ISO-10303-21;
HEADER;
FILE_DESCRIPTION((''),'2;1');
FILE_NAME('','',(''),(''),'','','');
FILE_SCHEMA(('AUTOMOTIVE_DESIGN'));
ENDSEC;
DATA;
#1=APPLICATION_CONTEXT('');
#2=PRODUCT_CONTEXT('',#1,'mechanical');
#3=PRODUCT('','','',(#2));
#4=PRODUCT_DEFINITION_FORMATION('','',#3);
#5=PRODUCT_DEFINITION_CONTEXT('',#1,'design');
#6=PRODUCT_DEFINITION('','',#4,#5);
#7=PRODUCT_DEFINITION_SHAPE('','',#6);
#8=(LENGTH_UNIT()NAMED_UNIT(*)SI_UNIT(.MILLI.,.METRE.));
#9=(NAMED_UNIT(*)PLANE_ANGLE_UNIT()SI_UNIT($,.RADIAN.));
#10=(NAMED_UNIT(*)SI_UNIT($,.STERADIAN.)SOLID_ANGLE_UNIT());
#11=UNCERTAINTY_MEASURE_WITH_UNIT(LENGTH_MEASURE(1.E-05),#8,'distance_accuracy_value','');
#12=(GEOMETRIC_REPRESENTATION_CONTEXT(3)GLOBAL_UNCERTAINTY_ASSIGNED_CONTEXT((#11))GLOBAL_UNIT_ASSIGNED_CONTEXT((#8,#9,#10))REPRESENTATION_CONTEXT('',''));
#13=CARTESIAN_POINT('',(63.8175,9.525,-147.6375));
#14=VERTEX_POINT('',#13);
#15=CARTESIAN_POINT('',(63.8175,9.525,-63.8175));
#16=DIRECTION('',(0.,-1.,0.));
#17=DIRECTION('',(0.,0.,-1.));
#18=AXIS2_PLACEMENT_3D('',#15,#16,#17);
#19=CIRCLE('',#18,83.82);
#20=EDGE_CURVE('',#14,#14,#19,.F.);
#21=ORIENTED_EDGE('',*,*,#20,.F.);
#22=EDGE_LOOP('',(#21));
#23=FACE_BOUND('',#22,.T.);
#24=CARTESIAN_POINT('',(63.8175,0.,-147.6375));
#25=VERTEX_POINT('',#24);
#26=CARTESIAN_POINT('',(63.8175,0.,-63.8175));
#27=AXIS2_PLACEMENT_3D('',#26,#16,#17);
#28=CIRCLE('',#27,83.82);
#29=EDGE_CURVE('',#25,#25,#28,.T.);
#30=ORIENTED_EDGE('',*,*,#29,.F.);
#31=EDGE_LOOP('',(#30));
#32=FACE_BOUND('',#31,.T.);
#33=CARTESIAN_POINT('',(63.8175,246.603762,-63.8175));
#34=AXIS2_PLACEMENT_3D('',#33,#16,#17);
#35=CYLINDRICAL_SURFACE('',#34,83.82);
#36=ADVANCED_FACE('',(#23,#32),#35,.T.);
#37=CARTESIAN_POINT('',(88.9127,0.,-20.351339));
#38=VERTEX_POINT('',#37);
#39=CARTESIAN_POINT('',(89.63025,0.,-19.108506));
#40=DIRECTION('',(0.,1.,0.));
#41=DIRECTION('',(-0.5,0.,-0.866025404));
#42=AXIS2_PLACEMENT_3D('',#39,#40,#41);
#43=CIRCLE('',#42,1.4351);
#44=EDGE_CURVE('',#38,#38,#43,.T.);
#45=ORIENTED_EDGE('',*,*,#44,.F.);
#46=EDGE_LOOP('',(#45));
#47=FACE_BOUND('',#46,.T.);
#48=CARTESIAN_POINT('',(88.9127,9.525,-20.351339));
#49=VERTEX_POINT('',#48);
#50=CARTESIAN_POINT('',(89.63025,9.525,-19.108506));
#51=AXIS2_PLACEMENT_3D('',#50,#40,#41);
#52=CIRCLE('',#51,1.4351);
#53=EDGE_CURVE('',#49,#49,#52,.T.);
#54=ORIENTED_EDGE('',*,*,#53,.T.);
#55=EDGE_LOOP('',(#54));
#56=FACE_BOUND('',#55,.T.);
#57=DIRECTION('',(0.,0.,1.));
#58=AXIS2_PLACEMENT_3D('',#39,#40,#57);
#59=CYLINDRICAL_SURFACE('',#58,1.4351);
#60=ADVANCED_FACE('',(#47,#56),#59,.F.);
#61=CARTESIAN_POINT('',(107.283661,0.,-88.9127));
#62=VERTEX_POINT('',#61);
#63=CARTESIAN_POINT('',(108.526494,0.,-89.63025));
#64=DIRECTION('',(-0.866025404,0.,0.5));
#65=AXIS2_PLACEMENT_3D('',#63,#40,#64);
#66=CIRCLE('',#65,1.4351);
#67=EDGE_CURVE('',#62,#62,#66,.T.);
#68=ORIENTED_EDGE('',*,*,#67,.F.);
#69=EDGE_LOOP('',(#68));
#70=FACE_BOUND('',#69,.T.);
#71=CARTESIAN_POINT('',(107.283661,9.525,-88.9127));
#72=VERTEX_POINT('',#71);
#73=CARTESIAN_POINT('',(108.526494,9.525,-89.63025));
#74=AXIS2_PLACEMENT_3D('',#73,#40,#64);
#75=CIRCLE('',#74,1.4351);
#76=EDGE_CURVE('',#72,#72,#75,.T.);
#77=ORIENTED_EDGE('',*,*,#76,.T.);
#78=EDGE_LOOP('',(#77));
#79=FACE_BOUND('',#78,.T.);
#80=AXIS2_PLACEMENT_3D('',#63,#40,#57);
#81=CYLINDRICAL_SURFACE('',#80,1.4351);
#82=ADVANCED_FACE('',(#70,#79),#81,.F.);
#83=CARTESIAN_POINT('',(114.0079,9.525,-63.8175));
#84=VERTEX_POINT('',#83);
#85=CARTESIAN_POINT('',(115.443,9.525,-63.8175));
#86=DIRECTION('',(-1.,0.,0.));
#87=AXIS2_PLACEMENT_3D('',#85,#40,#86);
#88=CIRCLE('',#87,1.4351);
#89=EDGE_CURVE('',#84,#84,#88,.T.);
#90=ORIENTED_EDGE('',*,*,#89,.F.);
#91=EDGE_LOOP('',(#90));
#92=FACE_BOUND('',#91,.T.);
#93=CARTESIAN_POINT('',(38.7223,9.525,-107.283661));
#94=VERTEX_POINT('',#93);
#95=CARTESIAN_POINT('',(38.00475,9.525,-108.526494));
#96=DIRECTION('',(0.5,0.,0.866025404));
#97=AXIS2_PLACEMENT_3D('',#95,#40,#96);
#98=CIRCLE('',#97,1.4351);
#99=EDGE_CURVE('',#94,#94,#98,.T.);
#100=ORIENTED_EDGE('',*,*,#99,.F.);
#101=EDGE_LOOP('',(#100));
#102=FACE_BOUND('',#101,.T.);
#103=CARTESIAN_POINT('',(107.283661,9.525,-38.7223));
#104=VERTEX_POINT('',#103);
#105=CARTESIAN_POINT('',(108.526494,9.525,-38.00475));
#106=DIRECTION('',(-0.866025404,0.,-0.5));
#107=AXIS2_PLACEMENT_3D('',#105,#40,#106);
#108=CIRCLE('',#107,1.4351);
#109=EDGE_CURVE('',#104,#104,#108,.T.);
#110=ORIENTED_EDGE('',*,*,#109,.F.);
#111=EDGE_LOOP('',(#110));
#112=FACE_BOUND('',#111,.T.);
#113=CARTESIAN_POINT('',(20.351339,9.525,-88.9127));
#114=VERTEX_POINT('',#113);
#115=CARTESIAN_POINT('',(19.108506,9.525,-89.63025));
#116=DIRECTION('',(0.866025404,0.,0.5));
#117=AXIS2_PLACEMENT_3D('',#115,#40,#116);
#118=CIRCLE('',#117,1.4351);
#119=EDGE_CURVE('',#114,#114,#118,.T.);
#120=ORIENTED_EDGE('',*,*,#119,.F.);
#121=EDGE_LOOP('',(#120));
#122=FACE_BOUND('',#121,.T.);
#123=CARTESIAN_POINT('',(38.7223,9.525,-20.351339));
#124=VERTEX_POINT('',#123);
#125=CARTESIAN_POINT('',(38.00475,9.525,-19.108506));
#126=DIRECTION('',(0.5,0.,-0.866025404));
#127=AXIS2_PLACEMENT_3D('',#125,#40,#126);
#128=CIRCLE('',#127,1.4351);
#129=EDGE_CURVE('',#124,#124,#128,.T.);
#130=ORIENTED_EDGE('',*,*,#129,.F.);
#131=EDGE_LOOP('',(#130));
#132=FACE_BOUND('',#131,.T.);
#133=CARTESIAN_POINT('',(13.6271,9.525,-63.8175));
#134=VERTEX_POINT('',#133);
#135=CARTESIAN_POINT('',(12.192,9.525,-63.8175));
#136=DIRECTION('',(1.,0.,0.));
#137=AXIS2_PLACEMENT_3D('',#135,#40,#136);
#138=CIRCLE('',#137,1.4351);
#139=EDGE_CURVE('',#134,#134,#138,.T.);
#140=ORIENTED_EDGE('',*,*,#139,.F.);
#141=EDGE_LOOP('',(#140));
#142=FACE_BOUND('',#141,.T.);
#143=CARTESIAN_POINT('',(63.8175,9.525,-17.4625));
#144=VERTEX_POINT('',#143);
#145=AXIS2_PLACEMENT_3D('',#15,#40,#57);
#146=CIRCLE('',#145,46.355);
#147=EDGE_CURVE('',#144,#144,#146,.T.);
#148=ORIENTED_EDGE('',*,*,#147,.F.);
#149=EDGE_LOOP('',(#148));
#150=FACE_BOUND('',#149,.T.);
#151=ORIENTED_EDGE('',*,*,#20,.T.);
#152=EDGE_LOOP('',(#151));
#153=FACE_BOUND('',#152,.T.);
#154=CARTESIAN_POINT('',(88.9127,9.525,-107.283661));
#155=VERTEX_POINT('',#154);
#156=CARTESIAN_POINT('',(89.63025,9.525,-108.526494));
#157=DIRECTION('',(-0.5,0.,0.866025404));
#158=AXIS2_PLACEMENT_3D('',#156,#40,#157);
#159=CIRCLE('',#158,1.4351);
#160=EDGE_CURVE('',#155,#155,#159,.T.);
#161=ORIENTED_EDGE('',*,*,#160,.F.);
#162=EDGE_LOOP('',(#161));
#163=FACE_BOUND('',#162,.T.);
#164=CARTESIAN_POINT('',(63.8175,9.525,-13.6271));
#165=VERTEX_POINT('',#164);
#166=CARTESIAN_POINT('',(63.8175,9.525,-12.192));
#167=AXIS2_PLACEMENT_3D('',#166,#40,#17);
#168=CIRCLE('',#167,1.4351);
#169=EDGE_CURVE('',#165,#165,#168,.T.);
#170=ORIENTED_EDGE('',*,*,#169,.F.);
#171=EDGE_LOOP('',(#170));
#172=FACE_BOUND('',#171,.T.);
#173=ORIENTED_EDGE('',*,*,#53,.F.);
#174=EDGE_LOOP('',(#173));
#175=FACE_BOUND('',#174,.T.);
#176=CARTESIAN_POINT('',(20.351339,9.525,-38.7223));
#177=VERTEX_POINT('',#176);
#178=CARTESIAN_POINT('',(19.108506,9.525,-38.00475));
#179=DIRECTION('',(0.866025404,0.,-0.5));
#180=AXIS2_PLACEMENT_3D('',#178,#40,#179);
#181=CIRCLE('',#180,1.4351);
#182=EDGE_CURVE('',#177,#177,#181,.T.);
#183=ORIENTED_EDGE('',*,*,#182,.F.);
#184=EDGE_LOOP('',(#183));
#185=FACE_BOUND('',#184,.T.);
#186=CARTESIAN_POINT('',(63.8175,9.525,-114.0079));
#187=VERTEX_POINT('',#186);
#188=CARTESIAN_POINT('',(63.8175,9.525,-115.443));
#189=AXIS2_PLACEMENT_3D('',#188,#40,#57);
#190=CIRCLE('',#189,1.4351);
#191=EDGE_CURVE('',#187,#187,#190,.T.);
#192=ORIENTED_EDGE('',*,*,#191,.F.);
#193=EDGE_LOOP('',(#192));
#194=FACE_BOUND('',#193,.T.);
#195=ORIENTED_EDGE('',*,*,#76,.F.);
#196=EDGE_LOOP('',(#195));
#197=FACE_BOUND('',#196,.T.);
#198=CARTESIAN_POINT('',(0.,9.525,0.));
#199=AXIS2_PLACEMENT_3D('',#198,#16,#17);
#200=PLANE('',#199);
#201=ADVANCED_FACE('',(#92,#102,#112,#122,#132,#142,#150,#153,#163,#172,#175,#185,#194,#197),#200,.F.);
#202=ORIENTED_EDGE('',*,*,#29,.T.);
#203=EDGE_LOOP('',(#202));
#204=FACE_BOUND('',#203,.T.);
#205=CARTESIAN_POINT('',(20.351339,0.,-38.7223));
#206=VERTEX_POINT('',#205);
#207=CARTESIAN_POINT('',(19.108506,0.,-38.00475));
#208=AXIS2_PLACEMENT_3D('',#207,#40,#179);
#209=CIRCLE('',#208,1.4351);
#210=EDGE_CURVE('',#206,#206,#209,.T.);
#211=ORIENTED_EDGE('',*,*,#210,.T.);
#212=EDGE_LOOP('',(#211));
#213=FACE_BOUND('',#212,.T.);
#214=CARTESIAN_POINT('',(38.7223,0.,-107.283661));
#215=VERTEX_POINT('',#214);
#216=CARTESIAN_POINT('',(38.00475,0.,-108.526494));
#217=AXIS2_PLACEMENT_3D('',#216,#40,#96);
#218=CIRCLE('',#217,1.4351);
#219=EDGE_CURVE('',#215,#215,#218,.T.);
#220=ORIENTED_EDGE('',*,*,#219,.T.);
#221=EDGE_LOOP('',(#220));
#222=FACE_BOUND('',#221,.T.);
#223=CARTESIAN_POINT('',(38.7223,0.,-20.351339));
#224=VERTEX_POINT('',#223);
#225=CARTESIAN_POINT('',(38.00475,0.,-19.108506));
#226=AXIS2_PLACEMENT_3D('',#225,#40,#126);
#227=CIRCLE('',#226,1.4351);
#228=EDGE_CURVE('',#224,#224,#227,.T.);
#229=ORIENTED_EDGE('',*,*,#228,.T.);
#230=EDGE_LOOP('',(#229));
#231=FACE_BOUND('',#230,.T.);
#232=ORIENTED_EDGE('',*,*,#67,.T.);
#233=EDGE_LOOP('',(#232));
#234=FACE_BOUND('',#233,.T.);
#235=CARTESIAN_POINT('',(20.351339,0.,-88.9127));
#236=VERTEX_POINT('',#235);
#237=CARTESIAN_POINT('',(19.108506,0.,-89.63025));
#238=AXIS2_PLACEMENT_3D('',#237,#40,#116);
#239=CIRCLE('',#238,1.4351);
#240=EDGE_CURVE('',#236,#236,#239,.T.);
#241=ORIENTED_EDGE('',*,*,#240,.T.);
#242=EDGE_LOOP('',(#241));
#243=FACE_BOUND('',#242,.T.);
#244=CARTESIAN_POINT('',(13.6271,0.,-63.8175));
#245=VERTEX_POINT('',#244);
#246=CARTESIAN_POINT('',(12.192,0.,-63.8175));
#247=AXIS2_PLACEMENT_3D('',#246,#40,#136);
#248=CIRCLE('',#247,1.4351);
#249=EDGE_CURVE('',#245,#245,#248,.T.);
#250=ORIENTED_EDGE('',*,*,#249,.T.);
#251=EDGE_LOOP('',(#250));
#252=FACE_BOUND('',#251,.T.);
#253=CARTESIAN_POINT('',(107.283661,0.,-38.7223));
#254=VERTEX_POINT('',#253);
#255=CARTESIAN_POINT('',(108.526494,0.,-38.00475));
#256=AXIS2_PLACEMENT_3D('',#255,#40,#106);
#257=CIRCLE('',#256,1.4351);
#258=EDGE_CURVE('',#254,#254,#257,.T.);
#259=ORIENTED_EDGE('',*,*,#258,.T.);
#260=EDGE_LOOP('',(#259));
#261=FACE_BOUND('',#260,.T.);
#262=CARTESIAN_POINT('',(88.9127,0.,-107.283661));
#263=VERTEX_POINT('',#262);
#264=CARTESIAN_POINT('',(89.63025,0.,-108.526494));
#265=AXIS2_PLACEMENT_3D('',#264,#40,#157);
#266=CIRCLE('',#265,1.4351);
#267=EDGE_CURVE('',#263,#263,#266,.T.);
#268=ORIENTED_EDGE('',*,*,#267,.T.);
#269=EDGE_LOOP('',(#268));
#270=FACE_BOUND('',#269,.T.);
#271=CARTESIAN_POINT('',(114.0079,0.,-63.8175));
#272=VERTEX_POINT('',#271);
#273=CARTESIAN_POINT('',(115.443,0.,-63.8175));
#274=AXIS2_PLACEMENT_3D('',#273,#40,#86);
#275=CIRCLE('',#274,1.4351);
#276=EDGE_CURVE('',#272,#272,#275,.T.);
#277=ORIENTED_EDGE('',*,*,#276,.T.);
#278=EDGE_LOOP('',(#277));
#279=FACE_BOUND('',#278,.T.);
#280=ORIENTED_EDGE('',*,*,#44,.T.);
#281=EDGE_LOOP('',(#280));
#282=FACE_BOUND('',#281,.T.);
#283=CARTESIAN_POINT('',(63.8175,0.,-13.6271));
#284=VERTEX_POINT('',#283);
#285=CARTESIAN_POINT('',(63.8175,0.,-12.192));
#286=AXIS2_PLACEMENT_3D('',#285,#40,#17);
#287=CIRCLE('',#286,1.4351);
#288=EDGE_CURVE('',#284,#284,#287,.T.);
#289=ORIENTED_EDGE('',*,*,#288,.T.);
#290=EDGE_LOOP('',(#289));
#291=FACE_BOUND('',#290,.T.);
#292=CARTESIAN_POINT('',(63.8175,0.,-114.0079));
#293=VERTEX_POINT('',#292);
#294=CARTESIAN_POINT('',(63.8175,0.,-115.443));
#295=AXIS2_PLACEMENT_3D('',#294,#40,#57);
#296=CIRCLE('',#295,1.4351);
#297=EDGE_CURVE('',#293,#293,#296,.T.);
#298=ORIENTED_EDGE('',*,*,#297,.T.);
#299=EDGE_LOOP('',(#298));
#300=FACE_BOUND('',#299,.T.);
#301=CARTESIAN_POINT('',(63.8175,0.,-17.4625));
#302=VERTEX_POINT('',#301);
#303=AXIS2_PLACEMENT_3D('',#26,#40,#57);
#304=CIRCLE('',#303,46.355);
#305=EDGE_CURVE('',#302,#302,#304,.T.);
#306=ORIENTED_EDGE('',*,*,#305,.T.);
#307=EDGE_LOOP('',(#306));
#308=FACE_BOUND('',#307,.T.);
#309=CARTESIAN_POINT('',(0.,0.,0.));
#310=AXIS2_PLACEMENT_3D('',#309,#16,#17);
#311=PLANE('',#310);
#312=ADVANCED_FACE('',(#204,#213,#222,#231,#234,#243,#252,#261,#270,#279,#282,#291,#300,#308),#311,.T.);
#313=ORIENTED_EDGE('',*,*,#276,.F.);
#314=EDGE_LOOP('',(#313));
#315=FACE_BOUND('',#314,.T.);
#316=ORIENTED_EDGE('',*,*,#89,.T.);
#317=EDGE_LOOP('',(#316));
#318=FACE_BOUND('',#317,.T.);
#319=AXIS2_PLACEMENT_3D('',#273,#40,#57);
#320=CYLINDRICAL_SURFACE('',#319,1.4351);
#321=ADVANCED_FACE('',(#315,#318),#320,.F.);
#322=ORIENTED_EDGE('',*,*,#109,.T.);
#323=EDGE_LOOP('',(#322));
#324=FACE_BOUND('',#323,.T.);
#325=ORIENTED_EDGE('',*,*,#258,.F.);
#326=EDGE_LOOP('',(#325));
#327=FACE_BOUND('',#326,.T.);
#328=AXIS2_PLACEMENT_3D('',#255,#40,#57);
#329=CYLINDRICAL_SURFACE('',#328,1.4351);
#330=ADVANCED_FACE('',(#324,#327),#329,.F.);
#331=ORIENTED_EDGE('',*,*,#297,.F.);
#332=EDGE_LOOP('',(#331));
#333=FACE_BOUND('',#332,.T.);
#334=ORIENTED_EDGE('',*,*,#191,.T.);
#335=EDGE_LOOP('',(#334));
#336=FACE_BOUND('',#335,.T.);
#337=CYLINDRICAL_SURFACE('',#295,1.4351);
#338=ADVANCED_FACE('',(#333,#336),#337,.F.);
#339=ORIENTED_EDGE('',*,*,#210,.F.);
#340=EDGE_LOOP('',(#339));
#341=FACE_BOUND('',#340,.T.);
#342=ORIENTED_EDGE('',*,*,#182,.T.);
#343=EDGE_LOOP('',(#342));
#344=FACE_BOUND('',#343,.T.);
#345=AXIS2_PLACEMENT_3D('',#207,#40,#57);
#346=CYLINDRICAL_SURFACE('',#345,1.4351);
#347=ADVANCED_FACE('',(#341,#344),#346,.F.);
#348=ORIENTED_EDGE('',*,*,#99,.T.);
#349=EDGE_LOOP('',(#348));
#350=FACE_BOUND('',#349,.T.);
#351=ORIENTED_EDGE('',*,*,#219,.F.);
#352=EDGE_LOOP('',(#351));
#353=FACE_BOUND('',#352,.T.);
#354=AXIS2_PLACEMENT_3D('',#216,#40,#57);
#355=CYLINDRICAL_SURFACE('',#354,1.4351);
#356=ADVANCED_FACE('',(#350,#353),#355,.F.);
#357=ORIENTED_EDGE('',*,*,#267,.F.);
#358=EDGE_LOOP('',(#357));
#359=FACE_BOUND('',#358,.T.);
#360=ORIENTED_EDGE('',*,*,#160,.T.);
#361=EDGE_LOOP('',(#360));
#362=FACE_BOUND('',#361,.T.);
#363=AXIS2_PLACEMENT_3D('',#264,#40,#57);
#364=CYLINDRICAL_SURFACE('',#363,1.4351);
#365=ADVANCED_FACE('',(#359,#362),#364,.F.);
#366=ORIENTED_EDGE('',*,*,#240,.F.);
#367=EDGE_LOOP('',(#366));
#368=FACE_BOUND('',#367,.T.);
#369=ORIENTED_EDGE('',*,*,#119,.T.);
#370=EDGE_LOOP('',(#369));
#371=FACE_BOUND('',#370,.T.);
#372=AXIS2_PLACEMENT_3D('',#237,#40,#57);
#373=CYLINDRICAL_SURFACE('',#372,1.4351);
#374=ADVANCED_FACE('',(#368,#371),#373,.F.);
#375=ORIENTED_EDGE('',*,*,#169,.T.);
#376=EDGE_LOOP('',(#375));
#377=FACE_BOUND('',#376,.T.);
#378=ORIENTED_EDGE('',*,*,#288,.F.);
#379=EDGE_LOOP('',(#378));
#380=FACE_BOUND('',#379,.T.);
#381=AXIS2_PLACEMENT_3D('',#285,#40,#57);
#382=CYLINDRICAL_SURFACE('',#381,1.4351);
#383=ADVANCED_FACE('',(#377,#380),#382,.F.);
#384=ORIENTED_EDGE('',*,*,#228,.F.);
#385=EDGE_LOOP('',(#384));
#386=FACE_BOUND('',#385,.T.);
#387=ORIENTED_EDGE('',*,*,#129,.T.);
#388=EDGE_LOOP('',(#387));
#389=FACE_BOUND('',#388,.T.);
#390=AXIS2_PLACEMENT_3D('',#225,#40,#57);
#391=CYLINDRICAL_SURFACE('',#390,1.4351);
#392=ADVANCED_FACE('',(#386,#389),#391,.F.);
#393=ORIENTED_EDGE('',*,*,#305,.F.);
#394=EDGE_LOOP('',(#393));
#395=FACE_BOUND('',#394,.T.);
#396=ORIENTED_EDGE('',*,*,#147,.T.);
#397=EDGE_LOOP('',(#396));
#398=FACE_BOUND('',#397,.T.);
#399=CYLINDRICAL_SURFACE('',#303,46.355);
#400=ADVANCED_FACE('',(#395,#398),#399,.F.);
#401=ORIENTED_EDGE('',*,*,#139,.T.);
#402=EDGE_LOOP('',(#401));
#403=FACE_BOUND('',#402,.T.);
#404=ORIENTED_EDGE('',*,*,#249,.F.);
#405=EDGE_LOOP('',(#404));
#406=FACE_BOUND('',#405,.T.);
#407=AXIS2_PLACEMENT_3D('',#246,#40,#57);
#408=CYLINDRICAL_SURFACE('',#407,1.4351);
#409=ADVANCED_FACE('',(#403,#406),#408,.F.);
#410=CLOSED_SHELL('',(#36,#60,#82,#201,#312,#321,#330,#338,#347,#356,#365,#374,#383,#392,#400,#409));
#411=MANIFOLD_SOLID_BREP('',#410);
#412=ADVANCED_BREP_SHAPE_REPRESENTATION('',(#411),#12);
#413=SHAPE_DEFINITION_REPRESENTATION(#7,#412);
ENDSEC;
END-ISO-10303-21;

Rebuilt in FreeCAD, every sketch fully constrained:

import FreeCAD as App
import Part
import Sketcher

V = App.Vector
Q = App.Units.Quantity


def add_polygon(sketch, points):
    """Adds a closed chain of lines whose ends are joined by coincident constraints."""
    first, n = sketch.GeometryCount, len(points)
    for a, b in zip(points, points[1:] + points[:1]):
        sketch.addGeometry(Part.LineSegment(App.Vector(*a, 0), App.Vector(*b, 0)), False)
    for i in range(n):
        sketch.addConstraint(Sketcher.Constraint("Coincident", first + i, 2, first + (i + 1) % n, 1))

doc = App.newDocument("Part")
body = doc.addObject("PartDesign::Body", "Body")

# Sketch on XZ plane
sketch1 = doc.addObject("Sketcher::SketchObject", "Sketch")
body.addObject(sketch1)
sketch1.AttachmentSupport = (doc.XZ_Plane, [""])
sketch1.MapMode = "FlatFace"
add_polygon(sketch1, [(0, -127.635), (0, 0), (127.635, 0), (127.635, -127.635)])  # lines 0-3
sketch1.addConstraint([
    Sketcher.Constraint("Vertical", 0),
    Sketcher.Constraint("Horizontal", 1),
    Sketcher.Constraint("Vertical", 2),
    Sketcher.Constraint("Horizontal", 3),
    Sketcher.Constraint("Coincident", 0, 2, -1, 1),
    Sketcher.Constraint("Equal", 3, 0),
    Sketcher.Constraint("DistanceX", 1, 1, 1, 2, Q("5.025 in")),
])
pad1 = doc.addObject("PartDesign::Pad", "Pad")
body.addObject(pad1)
pad1.Profile = sketch1
pad1.Length = Q("0.375 in")
pad1.Reversed = True

# Sketch on XZ plane
sketch2 = doc.addObject("Sketcher::SketchObject", "Sketch001")
body.addObject(sketch2)
sketch2.AttachmentSupport = (doc.XZ_Plane, [""])
sketch2.MapMode = "FlatFace"
sketch2.addGeometry(Part.Circle(V(63.8175, -63.8175, 0), V(0, 0, 1), 83.82), False)
sketch2.addConstraint([
    Sketcher.Constraint("Diameter", 0, Q("6.6 in")),
    Sketcher.Constraint("DistanceX", -1, 1, 0, 3, Q("2.5125 in")),
    Sketcher.Constraint("DistanceY", 0, 3, -1, 1, Q("2.5125 in")),
])
pad2 = doc.addObject("PartDesign::Pad", "Pad001")
body.addObject(pad2)
pad2.Profile = sketch2
pad2.Length = Q("0.375 in")
pad2.Reversed = True

# Sketch on XZ plane
sketch3 = doc.addObject("Sketcher::SketchObject", "Sketch002")
body.addObject(sketch3)
sketch3.AttachmentSupport = (doc.XZ_Plane, [""])
sketch3.MapMode = "FlatFace"
sketch3.addGeometry([
    Part.Circle(V(63.8175, -63.8175, 0), V(0, 0, 1), 104.928493),
    Part.Circle(V(63.8175, -63.8175, 0), V(0, 0, 1), 83.82),
], False)
sketch3.addConstraint([
    Sketcher.Constraint("Coincident", 1, 3, 0, 3),
    Sketcher.Constraint("Diameter", 1, Q("6.6 in")),
    Sketcher.Constraint("Diameter", 0, 209.856986),
    Sketcher.Constraint("DistanceX", -1, 1, 0, 3, Q("2.5125 in")),
    Sketcher.Constraint("DistanceY", 0, 3, -1, 1, Q("2.5125 in")),
])
pocket1 = doc.addObject("PartDesign::Pocket", "Pocket")
body.addObject(pocket1)
pocket1.Profile = sketch3
pocket1.Length = Q("0.375 in")

# Sketch on XZ plane
sketch4 = doc.addObject("Sketcher::SketchObject", "Sketch003")
body.addObject(sketch4)
sketch4.AttachmentSupport = (doc.XZ_Plane, [""])
sketch4.MapMode = "FlatFace"
sketch4.AttachmentOffset = App.Placement(V(0, 0, -0.375 * 25.4), App.Rotation())
sketch4.addGeometry(Part.Circle(V(63.8175, -63.8175, 0), V(0, 0, 1), 46.355), False)
sketch4.addConstraint([
    Sketcher.Constraint("Diameter", 0, Q("3.65 in")),
    Sketcher.Constraint("DistanceX", -1, 1, 0, 3, Q("2.5125 in")),
    Sketcher.Constraint("DistanceY", 0, 3, -1, 1, Q("2.5125 in")),
])
pocket2 = doc.addObject("PartDesign::Pocket", "Pocket001")
body.addObject(pocket2)
pocket2.Profile = sketch4
pocket2.Length = Q("0.375 in")
pocket2.Reversed = True

# Sketch on XZ plane
sketch5 = doc.addObject("Sketcher::SketchObject", "Sketch004")
body.addObject(sketch5)
sketch5.AttachmentSupport = (doc.XZ_Plane, [""])
sketch5.MapMode = "FlatFace"
sketch5.AttachmentOffset = App.Placement(V(0, 0, -0.375 * 25.4), App.Rotation())
sketch5.addGeometry(Part.Circle(V(63.8175, -115.443, 0), V(0, 0, 1), 1.4351), False)
sketch5.addConstraint([
    Sketcher.Constraint("Diameter", 0, Q("0.113 in")),
    Sketcher.Constraint("DistanceY", 0, 3, -1, 1, Q("4.545 in")),
    Sketcher.Constraint("DistanceX", -1, 1, 0, 3, Q("2.5125 in")),
])
pocket3 = doc.addObject("PartDesign::Pocket", "Pocket002")
body.addObject(pocket3)
pocket3.Profile = sketch5
pocket3.Type = "ThroughAll"
pocket3.Reversed = True
doc.recompute()

datumline = doc.addObject("PartDesign::Line", "DatumLine")
body.addObject(datumline)
datumline.Placement = App.Placement(V(63.8175, 0, -63.8175), App.Rotation(V(0, 0, 1), V(0, 1, 0)))
polarpattern = doc.addObject("PartDesign::PolarPattern", "PolarPattern")
body.addObject(polarpattern)
polarpattern.Originals = [pocket3]
polarpattern.Axis = (datumline, [""])
polarpattern.Angle = 360
polarpattern.Occurrences = 12
body.Tip = polarpattern

doc.recompute()
